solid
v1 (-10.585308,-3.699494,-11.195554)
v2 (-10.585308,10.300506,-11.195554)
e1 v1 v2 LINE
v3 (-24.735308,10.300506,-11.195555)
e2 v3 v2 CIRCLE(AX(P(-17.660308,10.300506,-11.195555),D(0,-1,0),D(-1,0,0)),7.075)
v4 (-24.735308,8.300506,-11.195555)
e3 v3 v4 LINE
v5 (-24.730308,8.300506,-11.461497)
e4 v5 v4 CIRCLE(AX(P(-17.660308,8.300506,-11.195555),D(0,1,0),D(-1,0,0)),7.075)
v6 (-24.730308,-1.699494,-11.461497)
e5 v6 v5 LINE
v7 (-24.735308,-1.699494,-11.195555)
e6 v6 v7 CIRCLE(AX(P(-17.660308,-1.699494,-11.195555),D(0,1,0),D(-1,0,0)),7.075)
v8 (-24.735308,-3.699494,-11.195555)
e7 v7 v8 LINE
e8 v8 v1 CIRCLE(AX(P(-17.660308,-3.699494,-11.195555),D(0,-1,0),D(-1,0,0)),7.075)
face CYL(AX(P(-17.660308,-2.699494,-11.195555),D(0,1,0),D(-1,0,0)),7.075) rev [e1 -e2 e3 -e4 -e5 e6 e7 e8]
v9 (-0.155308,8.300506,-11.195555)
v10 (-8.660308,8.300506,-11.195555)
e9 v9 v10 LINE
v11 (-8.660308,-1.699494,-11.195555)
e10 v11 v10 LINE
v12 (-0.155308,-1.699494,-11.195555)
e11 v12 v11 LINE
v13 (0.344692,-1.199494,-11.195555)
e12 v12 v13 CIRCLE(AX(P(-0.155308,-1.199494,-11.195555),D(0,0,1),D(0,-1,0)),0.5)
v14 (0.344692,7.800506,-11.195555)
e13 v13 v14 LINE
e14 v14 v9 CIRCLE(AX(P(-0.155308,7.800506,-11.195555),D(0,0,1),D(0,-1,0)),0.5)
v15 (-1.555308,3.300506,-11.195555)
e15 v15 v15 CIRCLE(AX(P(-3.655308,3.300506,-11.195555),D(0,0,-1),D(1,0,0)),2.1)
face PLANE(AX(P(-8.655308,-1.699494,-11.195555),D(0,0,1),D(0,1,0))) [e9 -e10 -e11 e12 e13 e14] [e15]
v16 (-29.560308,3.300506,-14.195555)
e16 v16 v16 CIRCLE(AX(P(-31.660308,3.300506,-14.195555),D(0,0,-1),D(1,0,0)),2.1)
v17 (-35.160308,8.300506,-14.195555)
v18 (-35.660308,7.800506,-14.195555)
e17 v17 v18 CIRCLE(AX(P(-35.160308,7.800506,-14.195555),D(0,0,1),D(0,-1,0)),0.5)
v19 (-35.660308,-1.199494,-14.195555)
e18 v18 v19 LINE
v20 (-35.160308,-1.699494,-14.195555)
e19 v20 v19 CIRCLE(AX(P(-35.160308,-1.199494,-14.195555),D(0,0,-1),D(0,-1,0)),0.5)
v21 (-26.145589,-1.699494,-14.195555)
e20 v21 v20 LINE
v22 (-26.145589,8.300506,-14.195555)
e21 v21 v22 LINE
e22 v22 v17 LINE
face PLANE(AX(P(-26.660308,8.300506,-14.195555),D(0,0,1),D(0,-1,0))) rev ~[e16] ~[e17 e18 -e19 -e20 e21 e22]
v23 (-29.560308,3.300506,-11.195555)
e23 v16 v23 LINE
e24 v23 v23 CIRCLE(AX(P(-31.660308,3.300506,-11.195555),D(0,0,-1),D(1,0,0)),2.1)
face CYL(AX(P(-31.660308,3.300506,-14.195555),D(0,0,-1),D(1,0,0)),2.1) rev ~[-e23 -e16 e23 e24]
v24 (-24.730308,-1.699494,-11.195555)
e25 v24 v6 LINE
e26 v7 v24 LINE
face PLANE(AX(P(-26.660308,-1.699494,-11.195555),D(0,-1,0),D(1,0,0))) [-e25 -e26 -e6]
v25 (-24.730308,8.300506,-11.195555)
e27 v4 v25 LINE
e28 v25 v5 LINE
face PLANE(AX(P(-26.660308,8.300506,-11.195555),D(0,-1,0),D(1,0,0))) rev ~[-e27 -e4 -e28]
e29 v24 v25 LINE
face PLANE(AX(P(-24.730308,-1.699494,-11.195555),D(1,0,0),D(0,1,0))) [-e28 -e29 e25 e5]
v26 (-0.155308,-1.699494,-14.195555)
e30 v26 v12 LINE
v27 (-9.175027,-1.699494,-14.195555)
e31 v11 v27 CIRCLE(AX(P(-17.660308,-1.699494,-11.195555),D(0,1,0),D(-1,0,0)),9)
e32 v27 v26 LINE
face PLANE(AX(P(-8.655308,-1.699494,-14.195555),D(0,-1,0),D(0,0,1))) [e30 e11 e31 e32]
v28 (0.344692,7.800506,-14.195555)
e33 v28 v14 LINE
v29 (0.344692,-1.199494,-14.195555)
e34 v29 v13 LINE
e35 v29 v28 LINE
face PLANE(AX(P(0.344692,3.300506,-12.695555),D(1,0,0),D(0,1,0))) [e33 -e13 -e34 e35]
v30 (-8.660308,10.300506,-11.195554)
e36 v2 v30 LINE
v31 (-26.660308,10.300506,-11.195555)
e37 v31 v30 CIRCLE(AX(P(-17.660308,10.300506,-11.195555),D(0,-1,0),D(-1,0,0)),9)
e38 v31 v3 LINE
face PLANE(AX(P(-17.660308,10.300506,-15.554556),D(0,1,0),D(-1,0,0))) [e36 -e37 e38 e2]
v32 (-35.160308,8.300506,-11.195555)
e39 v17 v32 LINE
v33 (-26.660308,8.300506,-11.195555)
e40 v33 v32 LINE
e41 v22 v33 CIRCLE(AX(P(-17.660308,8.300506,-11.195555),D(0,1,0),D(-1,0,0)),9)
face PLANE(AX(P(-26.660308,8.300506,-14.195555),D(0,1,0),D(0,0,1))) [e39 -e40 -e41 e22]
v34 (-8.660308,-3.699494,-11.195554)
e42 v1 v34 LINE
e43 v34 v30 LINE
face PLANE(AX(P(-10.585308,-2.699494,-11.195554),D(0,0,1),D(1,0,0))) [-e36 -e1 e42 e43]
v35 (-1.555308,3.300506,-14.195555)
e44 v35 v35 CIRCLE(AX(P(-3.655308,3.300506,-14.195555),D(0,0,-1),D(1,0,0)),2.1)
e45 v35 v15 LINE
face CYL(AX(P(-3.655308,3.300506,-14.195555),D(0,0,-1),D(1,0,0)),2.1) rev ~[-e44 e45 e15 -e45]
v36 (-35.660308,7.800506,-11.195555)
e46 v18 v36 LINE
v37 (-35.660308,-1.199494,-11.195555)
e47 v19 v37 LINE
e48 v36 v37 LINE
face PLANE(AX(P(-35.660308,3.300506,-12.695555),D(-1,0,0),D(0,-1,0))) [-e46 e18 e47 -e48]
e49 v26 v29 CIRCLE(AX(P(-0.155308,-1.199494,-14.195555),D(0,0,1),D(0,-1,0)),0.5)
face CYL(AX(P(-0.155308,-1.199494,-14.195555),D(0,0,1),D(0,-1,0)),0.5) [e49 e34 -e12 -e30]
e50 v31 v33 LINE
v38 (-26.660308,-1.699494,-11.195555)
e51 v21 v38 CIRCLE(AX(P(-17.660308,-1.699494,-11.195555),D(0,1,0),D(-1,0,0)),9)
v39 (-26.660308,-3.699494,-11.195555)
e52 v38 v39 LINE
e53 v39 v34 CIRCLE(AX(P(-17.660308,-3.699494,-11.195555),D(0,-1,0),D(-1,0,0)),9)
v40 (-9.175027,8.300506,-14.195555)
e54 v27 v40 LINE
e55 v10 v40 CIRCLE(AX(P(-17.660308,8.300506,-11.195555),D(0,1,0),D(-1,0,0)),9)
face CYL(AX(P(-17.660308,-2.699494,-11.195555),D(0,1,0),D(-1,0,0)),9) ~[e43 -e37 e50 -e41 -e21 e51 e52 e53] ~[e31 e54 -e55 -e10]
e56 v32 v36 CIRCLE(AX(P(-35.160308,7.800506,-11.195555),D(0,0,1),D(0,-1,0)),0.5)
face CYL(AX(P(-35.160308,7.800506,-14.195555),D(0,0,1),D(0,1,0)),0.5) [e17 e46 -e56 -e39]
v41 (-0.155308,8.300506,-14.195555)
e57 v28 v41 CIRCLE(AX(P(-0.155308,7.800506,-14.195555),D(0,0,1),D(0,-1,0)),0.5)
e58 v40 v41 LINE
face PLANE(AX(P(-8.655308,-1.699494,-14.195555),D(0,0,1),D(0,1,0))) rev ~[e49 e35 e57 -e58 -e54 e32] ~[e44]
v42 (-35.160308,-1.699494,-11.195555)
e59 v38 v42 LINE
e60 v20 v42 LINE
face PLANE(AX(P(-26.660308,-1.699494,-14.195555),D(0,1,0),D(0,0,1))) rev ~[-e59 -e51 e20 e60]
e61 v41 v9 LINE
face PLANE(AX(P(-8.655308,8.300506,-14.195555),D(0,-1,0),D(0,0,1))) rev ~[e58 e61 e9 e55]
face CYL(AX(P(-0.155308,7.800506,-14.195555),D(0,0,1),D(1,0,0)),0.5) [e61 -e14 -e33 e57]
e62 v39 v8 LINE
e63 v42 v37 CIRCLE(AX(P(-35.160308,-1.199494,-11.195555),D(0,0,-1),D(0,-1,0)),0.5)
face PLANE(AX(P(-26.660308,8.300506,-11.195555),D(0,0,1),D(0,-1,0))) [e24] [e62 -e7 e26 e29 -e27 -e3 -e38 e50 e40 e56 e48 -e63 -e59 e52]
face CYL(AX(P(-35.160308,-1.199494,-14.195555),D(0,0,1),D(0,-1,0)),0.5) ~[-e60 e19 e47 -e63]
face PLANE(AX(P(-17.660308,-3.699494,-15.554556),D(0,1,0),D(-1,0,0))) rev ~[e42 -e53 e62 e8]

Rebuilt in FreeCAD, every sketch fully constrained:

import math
import FreeCAD as App
import Part
import Sketcher

V = App.Vector


def edges_at(feature, points):
    """Names of the edges that pass closest to the given points."""
    edges = feature.Shape.Edges
    near = lambda p: min(range(len(edges)), key=lambda i: edges[i].distToShape(Part.Vertex(*p))[0])
    return sorted({f"Edge{near(p) + 1}" for p in points})


def add_polygon(sketch, points):
    """Adds a closed chain of lines whose ends are joined by coincident constraints."""
    first, n = sketch.GeometryCount, len(points)
    for a, b in zip(points, points[1:] + points[:1]):
        sketch.addGeometry(Part.LineSegment(App.Vector(*a, 0), App.Vector(*b, 0)), False)
    for i in range(n):
        sketch.addConstraint(Sketcher.Constraint("Coincident", first + i, 2, first + (i + 1) % n, 1))

doc = App.newDocument("Part")
body = doc.addObject("PartDesign::Body", "Body")

sketch1 = doc.addObject("Sketcher::SketchObject", "Sketch")
body.addObject(sketch1)
sketch1.AttachmentSupport = (doc.XZ_Plane, [""])
sketch1.MapMode = "FlatFace"
sketch1.AttachmentOffset = App.Placement(V(0, 0, 35.363644), App.Rotation())
sketch1.addGeometry([
    Part.ArcOfCircle(Part.Circle(V(-18, -12.9, 0), V(0, 0, 1), 7.1), math.radians(180), math.radians(360)),
    Part.LineSegment(V(-25, -12.9, 0), V(-27, -12.9, 0)),
    Part.ArcOfCircle(Part.Circle(V(-18, -12.9, 0), V(0, 0, 1), 9), math.radians(180), math.radians(360)),
    Part.LineSegment(V(-9, -12.9, 0), V(-10.9, -12.9, 0)),
], False)
sketch1.addConstraint([
    Sketcher.Constraint("Coincident", 0, 1, 1, 1),
    Sketcher.Constraint("Coincident", 1, 2, 2, 1),
    Sketcher.Constraint("Coincident", 2, 2, 3, 1),
    Sketcher.Constraint("Coincident", 3, 2, 0, 2),
    Sketcher.Constraint("Horizontal", 1),
    Sketcher.Constraint("Horizontal", 3),
    Sketcher.Constraint("Coincident", 2, 3, 0, 3),
    Sketcher.Constraint("Horizontal", 2, 3, 0, 1),
    Sketcher.Constraint("Horizontal", 1, 2, 2, 2),
    Sketcher.Constraint("Radius", 2, 9.0),
    Sketcher.Constraint("Radius", 0, 7.075),
    Sketcher.Constraint("DistanceX", 0, 3, -1, 1, 17.960308),
    Sketcher.Constraint("DistanceY", 0, 3, -1, 1, 12.895555),
])
pad1 = doc.addObject("PartDesign::Pad", "Pad")
body.addObject(pad1)
pad1.Profile = sketch1
pad1.Type = "TwoLengths"
pad1.Length = 13
pad1.Length2 = 1
pad1.Reversed = True

sketch2 = doc.addObject("Sketcher::SketchObject", "Sketch001")
body.addObject(sketch2)
sketch2.AttachmentSupport = (doc.XY_Plane, [""])
sketch2.MapMode = "FlatFace"
sketch2.AttachmentOffset = App.Placement(V(0, 0, -12.895555), App.Rotation())
add_polygon(sketch2, [(-27, -24.4), (-27, -34.4), (-25, -34.4), (-25, -24.4)])
add_polygon(sketch2, [(-10.9, -24.4), (-10.9, -34.4), (-9, -34.4), (-9, -24.4)])
sketch2.addConstraint([
    Sketcher.Constraint("Vertical", 0),
    Sketcher.Constraint("Horizontal", 1),
    Sketcher.Constraint("Vertical", 2),
    Sketcher.Constraint("Horizontal", 3),
    Sketcher.Constraint("Vertical", 4),
    Sketcher.Constraint("Horizontal", 5),
    Sketcher.Constraint("Vertical", 6),
    Sketcher.Constraint("Horizontal", 7),
    Sketcher.Constraint("Horizontal", 1, 2, 4, 2),
    Sketcher.Constraint("Horizontal", 3, 2, 6, 2),
    Sketcher.Constraint("Equal", 3, 5),
    Sketcher.Constraint("DistanceY", 0, 2, 0, 1, 10.0),
    Sketcher.Constraint("DistanceX", 1, 1, 1, 2, 1.93),
    Sketcher.Constraint("DistanceX", 1, 2, 4, 2, 14.145),
    Sketcher.Constraint("DistanceX", 0, 2, -1, 1, 26.960308),
    Sketcher.Constraint("DistanceY", 0, 2, -1, 1, 34.363644),
])
pad2 = doc.addObject("PartDesign::Pad", "Pad001")
body.addObject(pad2)
pad2.Profile = sketch2
pad2.Length = 3
pad2.Reversed = True

sketch3 = doc.addObject("Sketcher::SketchObject", "Sketch002")
body.addObject(sketch3)
sketch3.AttachmentSupport = (doc.YZ_Plane, [""])
sketch3.MapMode = "FlatFace"
sketch3.AttachmentOffset = App.Placement(V(0, 0, -26.960308), App.Rotation())
add_polygon(sketch3, [(-24.4, -12.9), (-24.4, -15.9), (-34.4, -15.9), (-34.4, -12.9)])
sketch3.addConstraint([
    Sketcher.Constraint("Vertical", 0),
    Sketcher.Constraint("Horizontal", 1),
    Sketcher.Constraint("Vertical", 2),
    Sketcher.Constraint("Horizontal", 3),
    Sketcher.Constraint("DistanceX", 1, 2, 1, 1, 10.0),
    Sketcher.Constraint("DistanceY", 0, 2, 0, 1, 3.0),
    Sketcher.Constraint("DistanceX", 0, 2, -1, 1, 24.363644),
    Sketcher.Constraint("DistanceY", 0, 2, -1, 1, 15.895555),
])
pad3 = doc.addObject("PartDesign::Pad", "Pad002")
body.addObject(pad3)
pad3.Profile = sketch3
pad3.Length = 9
pad3.Reversed = True

sketch4 = doc.addObject("Sketcher::SketchObject", "Sketch003")
body.addObject(sketch4)
sketch4.AttachmentSupport = (doc.YZ_Plane, [""])
sketch4.MapMode = "FlatFace"
sketch4.AttachmentOffset = App.Placement(V(0, 0, -8.955308), App.Rotation())
add_polygon(sketch4, [(-34.4, -12.9), (-34.4, -15.9), (-24.4, -15.9), (-24.4, -12.9)])
sketch4.addConstraint([
    Sketcher.Constraint("Vertical", 0),
    Sketcher.Constraint("Horizontal", 1),
    Sketcher.Constraint("Vertical", 2),
    Sketcher.Constraint("Horizontal", 3),
    Sketcher.Constraint("DistanceX", 1, 1, 1, 2, 10.0),
    Sketcher.Constraint("DistanceY", 0, 2, 0, 1, 3.0),
    Sketcher.Constraint("DistanceX", 0, 2, -1, 1, 34.363644),
    Sketcher.Constraint("DistanceY", 0, 2, -1, 1, 15.895555),
])
pad4 = doc.addObject("PartDesign::Pad", "Pad003")
body.addObject(pad4)
pad4.Profile = sketch4
pad4.Length = 9

sketch5 = doc.addObject("Sketcher::SketchObject", "Sketch004")
body.addObject(sketch5)
sketch5.AttachmentSupport = (doc.XY_Plane, [""])
sketch5.MapMode = "FlatFace"
sketch5.AttachmentOffset = App.Placement(V(0, 0, -15.895555), App.Rotation())
sketch5.addGeometry([
    Part.Circle(V(-32, -29.4, 0), V(0, 0, 1), 2.1),
    Part.Circle(V(-4, -29.4, 0), V(0, 0, 1), 2.1),
], False)
sketch5.addConstraint([
    Sketcher.Constraint("Equal", 0, 1),
    Sketcher.Constraint("Horizontal", 0, 3, 1, 3),
    Sketcher.Constraint("Diameter", 0, 4.2),
    Sketcher.Constraint("DistanceX", 0, 3, 1, 3, 28.005),
    Sketcher.Constraint("DistanceX", 0, 3, -1, 1, 31.960308),
    Sketcher.Constraint("DistanceY", 0, 3, -1, 1, 29.363644),
])
pocket1 = doc.addObject("PartDesign::Pocket", "Pocket")
body.addObject(pocket1)
pocket1.Profile = sketch5
pocket1.Type = "ThroughAll"
pocket1.Reversed = True
doc.recompute()

fillet = doc.addObject("PartDesign::Fillet", "Fillet")
body.addObject(fillet)
fillet.Base = (pocket1, edges_at(pocket1, [
    (-35.96, -24.364, -14.396),
    (-35.96, -34.364, -14.396),
    (0.045, -24.364, -14.396),
    (0.045, -34.364, -14.396),
]))
fillet.Radius = 0.5
body2 = doc.addObject("PartDesign::Body", "Body001")
doc.recompute()

body.Placement = App.Placement(V(0.3, 32.66415, 1.7), App.Rotation(V(0, 0, 1), 0))
boolean = doc.addObject("PartDesign::Boolean", "Boolean")
body2.addObject(boolean)
boolean.Type = "Fuse"
boolean.addObjects([body])

doc.recompute()
